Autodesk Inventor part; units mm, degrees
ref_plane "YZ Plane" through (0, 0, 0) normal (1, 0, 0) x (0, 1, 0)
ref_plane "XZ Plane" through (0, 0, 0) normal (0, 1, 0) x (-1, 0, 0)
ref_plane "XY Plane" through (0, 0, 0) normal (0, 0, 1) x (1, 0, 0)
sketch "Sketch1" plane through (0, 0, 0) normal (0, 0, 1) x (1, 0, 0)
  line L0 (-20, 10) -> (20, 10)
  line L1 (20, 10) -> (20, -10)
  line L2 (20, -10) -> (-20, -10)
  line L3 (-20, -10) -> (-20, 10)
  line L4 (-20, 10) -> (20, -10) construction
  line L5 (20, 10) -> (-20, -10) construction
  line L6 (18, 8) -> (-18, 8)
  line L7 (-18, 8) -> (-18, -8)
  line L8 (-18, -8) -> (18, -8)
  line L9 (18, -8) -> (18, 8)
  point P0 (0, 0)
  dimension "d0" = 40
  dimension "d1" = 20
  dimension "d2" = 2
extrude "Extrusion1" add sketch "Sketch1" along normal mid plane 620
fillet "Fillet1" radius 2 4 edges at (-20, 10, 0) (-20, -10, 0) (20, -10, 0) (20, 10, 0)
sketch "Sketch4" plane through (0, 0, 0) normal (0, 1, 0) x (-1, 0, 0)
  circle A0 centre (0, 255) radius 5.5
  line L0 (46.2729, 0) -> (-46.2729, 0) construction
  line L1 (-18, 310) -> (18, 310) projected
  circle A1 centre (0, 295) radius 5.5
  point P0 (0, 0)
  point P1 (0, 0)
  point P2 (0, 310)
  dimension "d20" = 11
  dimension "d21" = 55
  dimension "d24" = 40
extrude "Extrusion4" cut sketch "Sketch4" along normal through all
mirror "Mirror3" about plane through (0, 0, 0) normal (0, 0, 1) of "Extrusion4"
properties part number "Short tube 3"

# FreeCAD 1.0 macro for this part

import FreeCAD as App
import Part
import Sketcher
from FreeCAD import Vector
Q = App.Units.Quantity


def edges_at(feature, points):
    """Names of the edges that pass closest to the given points."""
    edges = feature.Shape.Edges
    near = lambda p: min(range(len(edges)), key=lambda i: edges[i].distToShape(Part.Vertex(*p))[0])
    return sorted({f"Edge{near(p) + 1}" for p in points})

doc = App.newDocument("Part")
body = doc.addObject("PartDesign::Body", "Body")

sketch1 = body.newObject("Sketcher::SketchObject", "Sketch")
sketch1.AttachmentSupport = (doc.getObject("XY_Plane"), [""])
sketch1.MapMode = "FlatFace"
sketch1.addGeometry([
    Part.LineSegment(Vector(20, 10, 0), Vector(-20, 10, 0)),
    Part.LineSegment(Vector(-20, 10, 0), Vector(-20, -10, 0)),
    Part.LineSegment(Vector(-20, -10, 0), Vector(20, -10, 0)),
    Part.LineSegment(Vector(20, -10, 0), Vector(20, 10, 0)),
    Part.LineSegment(Vector(-18, 8, 0), Vector(18, 8, 0)),
    Part.LineSegment(Vector(18, 8, 0), Vector(18, -8, 0)),
    Part.LineSegment(Vector(18, -8, 0), Vector(-18, -8, 0)),
    Part.LineSegment(Vector(-18, -8, 0), Vector(-18, 8, 0)),
], False)
sketch1.addConstraint([
    Sketcher.Constraint("Coincident", 0, 2, 1, 1),
    Sketcher.Constraint("Coincident", 1, 2, 2, 1),
    Sketcher.Constraint("Coincident", 2, 2, 3, 1),
    Sketcher.Constraint("Coincident", 3, 2, 0, 1),
    Sketcher.Constraint("Coincident", 4, 2, 5, 1),
    Sketcher.Constraint("Coincident", 5, 2, 6, 1),
    Sketcher.Constraint("Coincident", 6, 2, 7, 1),
    Sketcher.Constraint("Coincident", 7, 2, 4, 1),
    Sketcher.Constraint("Horizontal", 0),
    Sketcher.Constraint("Vertical", 1),
    Sketcher.Constraint("Horizontal", 2),
    Sketcher.Constraint("Vertical", 3),
    Sketcher.Constraint("Horizontal", 4),
    Sketcher.Constraint("Vertical", 5),
    Sketcher.Constraint("Horizontal", 6),
    Sketcher.Constraint("Vertical", 7),
    Sketcher.Constraint("Symmetric", 0, 2, 2, 2, -1, 1),
    Sketcher.Constraint("Symmetric", 4, 2, 6, 2, -1, 1),
    Sketcher.Constraint("DistanceX", 0, 2, 0, 1, Q("40 mm")),
    Sketcher.Constraint("DistanceY", 1, 2, 1, 1, Q("20 mm")),
    Sketcher.Constraint("DistanceX", 4, 2, 3, 2, Q("2 mm")),
    Sketcher.Constraint("DistanceY", 4, 2, 3, 2, Q("2 mm")),
])
pad1 = body.newObject("PartDesign::Pad", "Pad")
pad1.Profile = sketch1
pad1.Length = 620
pad1.Midplane = True
doc.recompute()

fillet = body.newObject("PartDesign::Fillet", "Fillet")
fillet.Base = (pad1, edges_at(pad1, [
    (-20, 10, 0),
    (-20, -10, 0),
    (20, -10, 0),
    (20, 10, 0),
]))
fillet.Radius = 2

sketch2 = body.newObject("Sketcher::SketchObject", "Sketch001")
sketch2.AttachmentSupport = (doc.getObject("XZ_Plane"), [""])
sketch2.MapMode = "FlatFace"
sketch2.addGeometry([
    Part.Circle(Vector(0, 255, 0), Vector(0, 0, 1), 5.5),
    Part.Circle(Vector(0, 295, 0), Vector(0, 0, 1), 5.5),
], False)
sketch2.addConstraint([
    Sketcher.Constraint("Equal", 0, 1),
    Sketcher.Constraint("PointOnObject", 0, 3, -2),
    Sketcher.Constraint("PointOnObject", 1, 3, -2),
    Sketcher.Constraint("Diameter", 0, Q("11 mm")),
    Sketcher.Constraint("DistanceY", 0, 3, 1, 3, Q("40 mm")),
    Sketcher.Constraint("DistanceY", -1, 1, 0, 3, Q("255 mm")),
])
pocket1 = body.newObject("PartDesign::Pocket", "Pocket")
pocket1.Profile = sketch2
pocket1.Type = "ThroughAll"
doc.recompute()

mirrored = body.newObject("PartDesign::Mirrored", "Mirrored")
mirrored.Originals = [pocket1]
mirrored.MirrorPlane = (doc.getObject("XY_Plane"), [""])
body.Tip = mirrored

doc.recompute()
